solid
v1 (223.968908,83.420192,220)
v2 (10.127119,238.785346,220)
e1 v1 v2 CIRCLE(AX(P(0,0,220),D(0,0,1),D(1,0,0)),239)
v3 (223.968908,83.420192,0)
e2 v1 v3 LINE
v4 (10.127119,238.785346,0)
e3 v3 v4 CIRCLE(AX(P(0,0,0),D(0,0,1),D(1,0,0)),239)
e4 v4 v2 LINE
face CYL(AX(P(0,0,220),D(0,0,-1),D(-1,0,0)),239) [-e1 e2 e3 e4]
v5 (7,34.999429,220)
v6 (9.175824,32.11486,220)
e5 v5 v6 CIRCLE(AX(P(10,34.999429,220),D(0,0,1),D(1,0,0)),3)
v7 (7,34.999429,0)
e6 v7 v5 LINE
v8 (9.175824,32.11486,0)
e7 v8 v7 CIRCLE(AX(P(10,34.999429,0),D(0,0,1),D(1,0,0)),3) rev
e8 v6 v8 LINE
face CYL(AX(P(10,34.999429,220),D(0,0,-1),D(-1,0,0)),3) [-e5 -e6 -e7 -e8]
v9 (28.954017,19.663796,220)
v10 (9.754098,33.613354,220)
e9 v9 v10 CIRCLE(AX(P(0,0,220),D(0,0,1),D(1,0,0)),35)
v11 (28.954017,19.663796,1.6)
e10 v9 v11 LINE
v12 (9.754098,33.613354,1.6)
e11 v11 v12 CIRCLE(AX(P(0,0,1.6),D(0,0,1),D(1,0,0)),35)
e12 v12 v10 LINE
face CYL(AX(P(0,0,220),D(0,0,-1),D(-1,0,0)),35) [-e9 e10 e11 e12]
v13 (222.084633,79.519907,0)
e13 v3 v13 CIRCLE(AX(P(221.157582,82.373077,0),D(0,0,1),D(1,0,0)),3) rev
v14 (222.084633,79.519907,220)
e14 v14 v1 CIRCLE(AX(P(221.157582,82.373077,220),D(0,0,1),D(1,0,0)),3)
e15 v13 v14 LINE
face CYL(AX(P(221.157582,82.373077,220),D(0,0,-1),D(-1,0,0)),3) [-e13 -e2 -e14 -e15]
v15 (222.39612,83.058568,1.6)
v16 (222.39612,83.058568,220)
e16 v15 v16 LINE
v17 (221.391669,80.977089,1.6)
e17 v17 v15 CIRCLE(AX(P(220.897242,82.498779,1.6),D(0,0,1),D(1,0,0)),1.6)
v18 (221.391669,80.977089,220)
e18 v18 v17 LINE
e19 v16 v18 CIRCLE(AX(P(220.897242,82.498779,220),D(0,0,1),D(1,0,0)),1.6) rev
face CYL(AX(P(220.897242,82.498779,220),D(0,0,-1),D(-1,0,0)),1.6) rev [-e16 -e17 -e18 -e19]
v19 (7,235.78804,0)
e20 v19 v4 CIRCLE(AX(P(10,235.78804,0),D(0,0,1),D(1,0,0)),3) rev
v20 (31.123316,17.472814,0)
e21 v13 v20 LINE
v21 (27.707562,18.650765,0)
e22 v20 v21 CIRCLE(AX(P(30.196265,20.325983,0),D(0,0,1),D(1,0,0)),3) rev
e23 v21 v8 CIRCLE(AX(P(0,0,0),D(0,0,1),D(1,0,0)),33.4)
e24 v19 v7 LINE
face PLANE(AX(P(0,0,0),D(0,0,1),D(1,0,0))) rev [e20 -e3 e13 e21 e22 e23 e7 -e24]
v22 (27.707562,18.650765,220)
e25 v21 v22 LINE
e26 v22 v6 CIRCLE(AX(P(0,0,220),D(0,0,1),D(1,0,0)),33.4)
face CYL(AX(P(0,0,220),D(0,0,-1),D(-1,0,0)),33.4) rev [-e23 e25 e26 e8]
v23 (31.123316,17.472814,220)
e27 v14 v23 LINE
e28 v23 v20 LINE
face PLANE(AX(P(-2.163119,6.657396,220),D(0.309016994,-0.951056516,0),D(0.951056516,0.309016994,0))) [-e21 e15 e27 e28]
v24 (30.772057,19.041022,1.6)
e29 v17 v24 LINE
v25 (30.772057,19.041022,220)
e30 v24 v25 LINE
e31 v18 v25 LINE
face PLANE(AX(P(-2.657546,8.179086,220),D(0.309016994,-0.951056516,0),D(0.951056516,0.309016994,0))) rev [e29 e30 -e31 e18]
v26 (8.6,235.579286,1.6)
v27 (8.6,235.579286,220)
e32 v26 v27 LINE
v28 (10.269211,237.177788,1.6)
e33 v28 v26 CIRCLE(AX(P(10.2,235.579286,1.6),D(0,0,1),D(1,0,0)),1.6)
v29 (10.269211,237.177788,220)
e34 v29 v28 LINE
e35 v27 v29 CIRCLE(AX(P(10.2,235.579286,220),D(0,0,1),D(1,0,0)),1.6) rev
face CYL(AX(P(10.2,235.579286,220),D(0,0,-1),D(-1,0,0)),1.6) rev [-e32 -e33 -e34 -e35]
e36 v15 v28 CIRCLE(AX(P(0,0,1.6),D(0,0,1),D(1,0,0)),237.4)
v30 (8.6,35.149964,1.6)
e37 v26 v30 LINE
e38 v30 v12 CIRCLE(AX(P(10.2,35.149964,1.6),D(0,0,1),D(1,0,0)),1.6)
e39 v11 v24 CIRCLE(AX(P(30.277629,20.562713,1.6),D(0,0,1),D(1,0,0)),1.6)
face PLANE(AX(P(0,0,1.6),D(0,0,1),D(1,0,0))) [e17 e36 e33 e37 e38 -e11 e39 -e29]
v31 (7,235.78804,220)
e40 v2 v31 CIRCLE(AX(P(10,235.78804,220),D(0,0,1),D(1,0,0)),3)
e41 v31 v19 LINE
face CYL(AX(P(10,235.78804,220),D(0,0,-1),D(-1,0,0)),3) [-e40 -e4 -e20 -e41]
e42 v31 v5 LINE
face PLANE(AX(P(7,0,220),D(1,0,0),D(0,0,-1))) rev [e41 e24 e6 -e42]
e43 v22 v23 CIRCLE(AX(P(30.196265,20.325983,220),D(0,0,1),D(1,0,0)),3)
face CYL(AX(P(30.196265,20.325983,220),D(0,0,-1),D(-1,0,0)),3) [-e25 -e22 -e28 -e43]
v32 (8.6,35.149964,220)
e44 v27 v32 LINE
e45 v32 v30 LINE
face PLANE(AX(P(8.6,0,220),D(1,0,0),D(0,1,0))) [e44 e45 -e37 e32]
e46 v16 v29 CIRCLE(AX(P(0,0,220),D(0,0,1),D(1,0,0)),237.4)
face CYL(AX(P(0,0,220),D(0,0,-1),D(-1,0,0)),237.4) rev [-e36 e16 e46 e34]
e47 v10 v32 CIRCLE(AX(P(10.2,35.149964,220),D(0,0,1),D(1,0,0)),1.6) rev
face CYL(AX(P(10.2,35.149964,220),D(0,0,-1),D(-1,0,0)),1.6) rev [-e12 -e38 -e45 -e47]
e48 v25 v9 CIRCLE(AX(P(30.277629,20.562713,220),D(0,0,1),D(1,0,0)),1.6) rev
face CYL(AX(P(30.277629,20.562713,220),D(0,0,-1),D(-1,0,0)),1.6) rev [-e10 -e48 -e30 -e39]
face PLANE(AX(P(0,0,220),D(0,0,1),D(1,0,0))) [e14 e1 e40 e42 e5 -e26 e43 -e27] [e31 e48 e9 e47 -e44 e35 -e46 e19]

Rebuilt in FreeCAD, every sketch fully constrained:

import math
import FreeCAD as App
import Part
import Sketcher
Q = App.Units.Quantity


def edges_at(feature, points):
    """Names of the edges that pass closest to the given points."""
    edges = feature.Shape.Edges
    near = lambda p: min(range(len(edges)), key=lambda i: edges[i].distToShape(Part.Vertex(*p))[0])
    return sorted({f"Edge{near(p) + 1}" for p in points})

doc = App.newDocument("Part")
params = doc.addObject("Spreadsheet::Sheet", "Params")
for row, (alias, value) in enumerate([
    ("sketch1_radius", "239 mm"),
    ("sketch1_radius2", "35 mm"),
    ("sketch1_radius3", "33.400001 mm"),
    ("sketch1_radius4", "237.4 mm"),
    ("pad1_length", "220 mm"),
    ("sketch2_radius", "35 mm"),
    ("sketch2_radius2", "237.4 mm"),
    ("pad2_length", "1.6 mm"),
    ("fillet_radius", "1.6 mm"),
    ("fillet2_radius", "3 mm"),
], start=1):
    params.set(f"A{row}", alias)
    params.set(f"B{row}", "=" + value)
    params.setAlias(f"B{row}", alias)

body = doc.addObject("PartDesign::Body", "Body")

sketch1 = body.newObject("Sketcher::SketchObject", "Sketch")
sketch1.AttachmentSupport = (doc.getObject("XY_Plane"), [""])
sketch1.MapMode = "FlatFace"
sketch1.addGeometry(Part.LineSegment(App.Vector(30.5, 17.3, 0), App.Vector(223.5, 80, 0)), False)
sketch1.addGeometry(Part.LineSegment(App.Vector(223.5, 80, 0), App.Vector(225, 80.5, 0)), False)
sketch1.addGeometry(Part.ArcOfCircle(Part.Circle(App.Vector(0, 0, 0), App.Vector(0, 0, 1), 239), math.radians(19.68), math.radians(20.06)), False)
sketch1.addGeometry(Part.ArcOfCircle(Part.Circle(App.Vector(0, 0, 0), App.Vector(0, 0, 1), 239), math.radians(20), math.radians(88)), False)
sketch1.addGeometry(Part.ArcOfCircle(Part.Circle(App.Vector(0, 0, 0), App.Vector(0, 0, 1), 239), math.radians(87.94), math.radians(88.32)), False)
sketch1.addGeometry(Part.LineSegment(App.Vector(7, 238.9, 0), App.Vector(7, 32.7, 0)), False)
sketch1.addGeometry(Part.ArcOfCircle(Part.Circle(App.Vector(0, 0, 0), App.Vector(0, 0, 1), 33.4), math.radians(75.08), math.radians(77.9)), False)
sketch1.addGeometry(Part.ArcOfCircle(Part.Circle(App.Vector(0, 0, 0), App.Vector(0, 0, 1), 33.4), math.radians(33), math.radians(75)), False)
sketch1.addGeometry(Part.ArcOfCircle(Part.Circle(App.Vector(0, 0, 0), App.Vector(0, 0, 1), 33.4), math.radians(30.1), math.radians(32.92)), False)
sketch1.addGeometry(Part.LineSegment(App.Vector(28.9, 16.7, 0), App.Vector(30.5, 17.3, 0)), False)
sketch1.addGeometry(Part.ArcOfCircle(Part.Circle(App.Vector(0, 0, 0), App.Vector(0, 0, 1), 237.4), math.radians(20), math.radians(88)), False)
sketch1.addGeometry(Part.LineSegment(App.Vector(223, 81.5, 0), App.Vector(29.6, 18.7, 0)), False)
sketch1.addGeometry(Part.ArcOfCircle(Part.Circle(App.Vector(0, 0, 0), App.Vector(0, 0, 1), 35), math.radians(32), math.radians(76)), False)
sketch1.addGeometry(Part.LineSegment(App.Vector(8.6, 33.9, 0), App.Vector(8.6, 237.2, 0)), False)
sketch1.addConstraint(Sketcher.Constraint("Coincident", 0, 2, 1, 1))
sketch1.addConstraint(Sketcher.Constraint("Coincident", 1, 2, 2, 1))
sketch1.addConstraint(Sketcher.Constraint("Tangent", 2, 2, 3, 1))
sketch1.addConstraint(Sketcher.Constraint("Tangent", 3, 2, 4, 1))
sketch1.addConstraint(Sketcher.Constraint("Coincident", 4, 2, 5, 1))
sketch1.addConstraint(Sketcher.Constraint("Coincident", 5, 2, 6, 2))
sketch1.addConstraint(Sketcher.Constraint("Tangent", 6, 1, 7, 2))
sketch1.addConstraint(Sketcher.Constraint("Tangent", 7, 1, 8, 2))
sketch1.addConstraint(Sketcher.Constraint("Coincident", 8, 1, 9, 1))
sketch1.addConstraint(Sketcher.Constraint("Coincident", 9, 2, 0, 1))
sketch1.addConstraint(Sketcher.Constraint("Coincident", 10, 1, 11, 1))
sketch1.addConstraint(Sketcher.Constraint("Coincident", 11, 2, 12, 1))
sketch1.addConstraint(Sketcher.Constraint("Coincident", 12, 2, 13, 1))
sketch1.addConstraint(Sketcher.Constraint("Coincident", 13, 2, 10, 2))
sketch1.addConstraint(Sketcher.Constraint("Vertical", 5))
sketch1.addConstraint(Sketcher.Constraint("Vertical", 13))
sketch1.addConstraint(Sketcher.Constraint("Coincident", 3, 3, -1, 1))
sketch1.addConstraint(Sketcher.Constraint("Coincident", 6, 3, -1, 1))
sketch1.addConstraint(Sketcher.Constraint("Coincident", 8, 3, -1, 1))
sketch1.addConstraint(Sketcher.Constraint("Coincident", 10, 3, -1, 1))
sketch1.addConstraint(Sketcher.Constraint("Coincident", 12, 3, -1, 1))
sketch1.addConstraint(Sketcher.Constraint("Equal", 3, 4))
sketch1.addConstraint(Sketcher.Constraint("Parallel", 0, 1))
sketch1.addConstraint(Sketcher.Constraint("Parallel", 1, 9))
sketch1.addConstraint(Sketcher.Constraint("Parallel", 9, 11))
sketch1.addConstraint(Sketcher.Constraint("Vertical", 3, 2, 6, 1))
sketch1.addConstraint(Sketcher.Constraint("Vertical", 6, 1, 12, 2))
sketch1.addConstraint(Sketcher.Constraint("Radius", 3, Q("239 mm")))
sketch1.addConstraint(Sketcher.Constraint("Radius", 12, Q("35 mm")))
sketch1.addConstraint(Sketcher.Constraint("Radius", 6, Q("33.400001 mm")))
sketch1.addConstraint(Sketcher.Constraint("Radius", 10, Q("237.4 mm")))
sketch1.addConstraint(Sketcher.Constraint("Angle", 0, Q("18 deg")))
sketch1.addConstraint(Sketcher.Constraint("DistanceX", -1, 1, 4, 2, Q("7 mm")))
sketch1.addConstraint(Sketcher.Constraint("DistanceX", -1, 1, 3, 2, Q("8.6 mm")))
sketch1.addConstraint(Sketcher.Constraint("Radius", 2, Q("239.00014 mm")))
sketch1.addConstraint(Sketcher.Constraint("DistanceY", -1, 1, 11, 2, Q("18.6631 mm")))
sketch1.addConstraint(Sketcher.Constraint("Distance", 0, Q("203.00392 mm")))
sketch1.addConstraint(Sketcher.Constraint("Distance", 1, Q("1.600691 mm")))
sketch1.addConstraint(Sketcher.Constraint("DistanceX", -1, 1, 2, 2, Q("224.497758 mm")))
sketch1.addConstraint(Sketcher.Constraint("DistanceX", -1, 1, 7, 1, Q("28.036689 mm")))
sketch1.addConstraint(Sketcher.Constraint("DistanceY", -1, 1, 9, 2, Q("17.254471 mm")))
sketch1.setExpression("Constraints[27]", "Params.sketch1_radius")
sketch1.setExpression("Constraints[28]", "Params.sketch1_radius2")
sketch1.setExpression("Constraints[29]", "Params.sketch1_radius3")
sketch1.setExpression("Constraints[30]", "Params.sketch1_radius4")
pad1 = body.newObject("PartDesign::Pad", "Pad")
pad1.Profile = sketch1
pad1.setExpression("Length", "Params.pad1_length")

sketch2 = body.newObject("Sketcher::SketchObject", "Sketch001")
sketch2.AttachmentSupport = (doc.getObject("XY_Plane"), [""])
sketch2.MapMode = "FlatFace"
sketch2.addGeometry(Part.ArcOfCircle(Part.Circle(App.Vector(0, 0, 0), App.Vector(0, 0, 1), 237), math.radians(20), math.radians(88)), False)
sketch2.addGeometry(Part.LineSegment(App.Vector(9, 237, 0), App.Vector(9, 34, 0)), False)
sketch2.addGeometry(Part.ArcOfCircle(Part.Circle(App.Vector(0, 0, 0), App.Vector(0, 0, 1), 35), math.radians(32), math.radians(76)), False)
sketch2.addGeometry(Part.LineSegment(App.Vector(30, 19, 0), App.Vector(223, 81, 0)), False)
sketch2.addConstraint(Sketcher.Constraint("Coincident", 0, 2, 1, 1))
sketch2.addConstraint(Sketcher.Constraint("Coincident", 1, 2, 2, 2))
sketch2.addConstraint(Sketcher.Constraint("Coincident", 2, 1, 3, 1))
sketch2.addConstraint(Sketcher.Constraint("Coincident", 3, 2, 0, 1))
sketch2.addConstraint(Sketcher.Constraint("Vertical", 1))
sketch2.addConstraint(Sketcher.Constraint("Coincident", 0, 3, -1, 1))
sketch2.addConstraint(Sketcher.Constraint("Coincident", 2, 3, -1, 1))
sketch2.addConstraint(Sketcher.Constraint("Radius", 2, Q("35 mm")))
sketch2.addConstraint(Sketcher.Constraint("Radius", 0, Q("237.4 mm")))
sketch2.addConstraint(Sketcher.Constraint("Angle", 3, Q("18 deg")))
sketch2.addConstraint(Sketcher.Constraint("DistanceX", -1, 1, 0, 2, Q("8.6 mm")))
sketch2.addConstraint(Sketcher.Constraint("DistanceY", -1, 1, 2, 1, Q("18.6631 mm")))
sketch2.setExpression("Constraints[7]", "Params.sketch2_radius")
sketch2.setExpression("Constraints[8]", "Params.sketch2_radius2")
pad2 = body.newObject("PartDesign::Pad", "Pad001")
pad2.Profile = sketch2
pad2.setExpression("Length", "Params.pad2_length")
doc.recompute()

fillet = body.newObject("PartDesign::Fillet", "Fillet")
fillet.Base = (pad2, edges_at(pad2, [
    (222.975, 81.492, 110.8),
    (8.6, 237.244, 110.8),
    (8.6, 33.927, 110.8),
    (29.609, 18.663, 110.8),
]))
fillet.setExpression("Radius", "Params.fillet_radius")
doc.recompute()

fillet2 = body.newObject("PartDesign::Fillet", "Fillet001")
fillet2.Base = (fillet, edges_at(fillet, [
    (7, 32.658, 110),
    (7, 238.897, 110),
    (225.042, 80.481, 110),
    (28.897, 16.749, 110),
]))
fillet2.setExpression("Radius", "Params.fillet2_radius")

doc.recompute()
